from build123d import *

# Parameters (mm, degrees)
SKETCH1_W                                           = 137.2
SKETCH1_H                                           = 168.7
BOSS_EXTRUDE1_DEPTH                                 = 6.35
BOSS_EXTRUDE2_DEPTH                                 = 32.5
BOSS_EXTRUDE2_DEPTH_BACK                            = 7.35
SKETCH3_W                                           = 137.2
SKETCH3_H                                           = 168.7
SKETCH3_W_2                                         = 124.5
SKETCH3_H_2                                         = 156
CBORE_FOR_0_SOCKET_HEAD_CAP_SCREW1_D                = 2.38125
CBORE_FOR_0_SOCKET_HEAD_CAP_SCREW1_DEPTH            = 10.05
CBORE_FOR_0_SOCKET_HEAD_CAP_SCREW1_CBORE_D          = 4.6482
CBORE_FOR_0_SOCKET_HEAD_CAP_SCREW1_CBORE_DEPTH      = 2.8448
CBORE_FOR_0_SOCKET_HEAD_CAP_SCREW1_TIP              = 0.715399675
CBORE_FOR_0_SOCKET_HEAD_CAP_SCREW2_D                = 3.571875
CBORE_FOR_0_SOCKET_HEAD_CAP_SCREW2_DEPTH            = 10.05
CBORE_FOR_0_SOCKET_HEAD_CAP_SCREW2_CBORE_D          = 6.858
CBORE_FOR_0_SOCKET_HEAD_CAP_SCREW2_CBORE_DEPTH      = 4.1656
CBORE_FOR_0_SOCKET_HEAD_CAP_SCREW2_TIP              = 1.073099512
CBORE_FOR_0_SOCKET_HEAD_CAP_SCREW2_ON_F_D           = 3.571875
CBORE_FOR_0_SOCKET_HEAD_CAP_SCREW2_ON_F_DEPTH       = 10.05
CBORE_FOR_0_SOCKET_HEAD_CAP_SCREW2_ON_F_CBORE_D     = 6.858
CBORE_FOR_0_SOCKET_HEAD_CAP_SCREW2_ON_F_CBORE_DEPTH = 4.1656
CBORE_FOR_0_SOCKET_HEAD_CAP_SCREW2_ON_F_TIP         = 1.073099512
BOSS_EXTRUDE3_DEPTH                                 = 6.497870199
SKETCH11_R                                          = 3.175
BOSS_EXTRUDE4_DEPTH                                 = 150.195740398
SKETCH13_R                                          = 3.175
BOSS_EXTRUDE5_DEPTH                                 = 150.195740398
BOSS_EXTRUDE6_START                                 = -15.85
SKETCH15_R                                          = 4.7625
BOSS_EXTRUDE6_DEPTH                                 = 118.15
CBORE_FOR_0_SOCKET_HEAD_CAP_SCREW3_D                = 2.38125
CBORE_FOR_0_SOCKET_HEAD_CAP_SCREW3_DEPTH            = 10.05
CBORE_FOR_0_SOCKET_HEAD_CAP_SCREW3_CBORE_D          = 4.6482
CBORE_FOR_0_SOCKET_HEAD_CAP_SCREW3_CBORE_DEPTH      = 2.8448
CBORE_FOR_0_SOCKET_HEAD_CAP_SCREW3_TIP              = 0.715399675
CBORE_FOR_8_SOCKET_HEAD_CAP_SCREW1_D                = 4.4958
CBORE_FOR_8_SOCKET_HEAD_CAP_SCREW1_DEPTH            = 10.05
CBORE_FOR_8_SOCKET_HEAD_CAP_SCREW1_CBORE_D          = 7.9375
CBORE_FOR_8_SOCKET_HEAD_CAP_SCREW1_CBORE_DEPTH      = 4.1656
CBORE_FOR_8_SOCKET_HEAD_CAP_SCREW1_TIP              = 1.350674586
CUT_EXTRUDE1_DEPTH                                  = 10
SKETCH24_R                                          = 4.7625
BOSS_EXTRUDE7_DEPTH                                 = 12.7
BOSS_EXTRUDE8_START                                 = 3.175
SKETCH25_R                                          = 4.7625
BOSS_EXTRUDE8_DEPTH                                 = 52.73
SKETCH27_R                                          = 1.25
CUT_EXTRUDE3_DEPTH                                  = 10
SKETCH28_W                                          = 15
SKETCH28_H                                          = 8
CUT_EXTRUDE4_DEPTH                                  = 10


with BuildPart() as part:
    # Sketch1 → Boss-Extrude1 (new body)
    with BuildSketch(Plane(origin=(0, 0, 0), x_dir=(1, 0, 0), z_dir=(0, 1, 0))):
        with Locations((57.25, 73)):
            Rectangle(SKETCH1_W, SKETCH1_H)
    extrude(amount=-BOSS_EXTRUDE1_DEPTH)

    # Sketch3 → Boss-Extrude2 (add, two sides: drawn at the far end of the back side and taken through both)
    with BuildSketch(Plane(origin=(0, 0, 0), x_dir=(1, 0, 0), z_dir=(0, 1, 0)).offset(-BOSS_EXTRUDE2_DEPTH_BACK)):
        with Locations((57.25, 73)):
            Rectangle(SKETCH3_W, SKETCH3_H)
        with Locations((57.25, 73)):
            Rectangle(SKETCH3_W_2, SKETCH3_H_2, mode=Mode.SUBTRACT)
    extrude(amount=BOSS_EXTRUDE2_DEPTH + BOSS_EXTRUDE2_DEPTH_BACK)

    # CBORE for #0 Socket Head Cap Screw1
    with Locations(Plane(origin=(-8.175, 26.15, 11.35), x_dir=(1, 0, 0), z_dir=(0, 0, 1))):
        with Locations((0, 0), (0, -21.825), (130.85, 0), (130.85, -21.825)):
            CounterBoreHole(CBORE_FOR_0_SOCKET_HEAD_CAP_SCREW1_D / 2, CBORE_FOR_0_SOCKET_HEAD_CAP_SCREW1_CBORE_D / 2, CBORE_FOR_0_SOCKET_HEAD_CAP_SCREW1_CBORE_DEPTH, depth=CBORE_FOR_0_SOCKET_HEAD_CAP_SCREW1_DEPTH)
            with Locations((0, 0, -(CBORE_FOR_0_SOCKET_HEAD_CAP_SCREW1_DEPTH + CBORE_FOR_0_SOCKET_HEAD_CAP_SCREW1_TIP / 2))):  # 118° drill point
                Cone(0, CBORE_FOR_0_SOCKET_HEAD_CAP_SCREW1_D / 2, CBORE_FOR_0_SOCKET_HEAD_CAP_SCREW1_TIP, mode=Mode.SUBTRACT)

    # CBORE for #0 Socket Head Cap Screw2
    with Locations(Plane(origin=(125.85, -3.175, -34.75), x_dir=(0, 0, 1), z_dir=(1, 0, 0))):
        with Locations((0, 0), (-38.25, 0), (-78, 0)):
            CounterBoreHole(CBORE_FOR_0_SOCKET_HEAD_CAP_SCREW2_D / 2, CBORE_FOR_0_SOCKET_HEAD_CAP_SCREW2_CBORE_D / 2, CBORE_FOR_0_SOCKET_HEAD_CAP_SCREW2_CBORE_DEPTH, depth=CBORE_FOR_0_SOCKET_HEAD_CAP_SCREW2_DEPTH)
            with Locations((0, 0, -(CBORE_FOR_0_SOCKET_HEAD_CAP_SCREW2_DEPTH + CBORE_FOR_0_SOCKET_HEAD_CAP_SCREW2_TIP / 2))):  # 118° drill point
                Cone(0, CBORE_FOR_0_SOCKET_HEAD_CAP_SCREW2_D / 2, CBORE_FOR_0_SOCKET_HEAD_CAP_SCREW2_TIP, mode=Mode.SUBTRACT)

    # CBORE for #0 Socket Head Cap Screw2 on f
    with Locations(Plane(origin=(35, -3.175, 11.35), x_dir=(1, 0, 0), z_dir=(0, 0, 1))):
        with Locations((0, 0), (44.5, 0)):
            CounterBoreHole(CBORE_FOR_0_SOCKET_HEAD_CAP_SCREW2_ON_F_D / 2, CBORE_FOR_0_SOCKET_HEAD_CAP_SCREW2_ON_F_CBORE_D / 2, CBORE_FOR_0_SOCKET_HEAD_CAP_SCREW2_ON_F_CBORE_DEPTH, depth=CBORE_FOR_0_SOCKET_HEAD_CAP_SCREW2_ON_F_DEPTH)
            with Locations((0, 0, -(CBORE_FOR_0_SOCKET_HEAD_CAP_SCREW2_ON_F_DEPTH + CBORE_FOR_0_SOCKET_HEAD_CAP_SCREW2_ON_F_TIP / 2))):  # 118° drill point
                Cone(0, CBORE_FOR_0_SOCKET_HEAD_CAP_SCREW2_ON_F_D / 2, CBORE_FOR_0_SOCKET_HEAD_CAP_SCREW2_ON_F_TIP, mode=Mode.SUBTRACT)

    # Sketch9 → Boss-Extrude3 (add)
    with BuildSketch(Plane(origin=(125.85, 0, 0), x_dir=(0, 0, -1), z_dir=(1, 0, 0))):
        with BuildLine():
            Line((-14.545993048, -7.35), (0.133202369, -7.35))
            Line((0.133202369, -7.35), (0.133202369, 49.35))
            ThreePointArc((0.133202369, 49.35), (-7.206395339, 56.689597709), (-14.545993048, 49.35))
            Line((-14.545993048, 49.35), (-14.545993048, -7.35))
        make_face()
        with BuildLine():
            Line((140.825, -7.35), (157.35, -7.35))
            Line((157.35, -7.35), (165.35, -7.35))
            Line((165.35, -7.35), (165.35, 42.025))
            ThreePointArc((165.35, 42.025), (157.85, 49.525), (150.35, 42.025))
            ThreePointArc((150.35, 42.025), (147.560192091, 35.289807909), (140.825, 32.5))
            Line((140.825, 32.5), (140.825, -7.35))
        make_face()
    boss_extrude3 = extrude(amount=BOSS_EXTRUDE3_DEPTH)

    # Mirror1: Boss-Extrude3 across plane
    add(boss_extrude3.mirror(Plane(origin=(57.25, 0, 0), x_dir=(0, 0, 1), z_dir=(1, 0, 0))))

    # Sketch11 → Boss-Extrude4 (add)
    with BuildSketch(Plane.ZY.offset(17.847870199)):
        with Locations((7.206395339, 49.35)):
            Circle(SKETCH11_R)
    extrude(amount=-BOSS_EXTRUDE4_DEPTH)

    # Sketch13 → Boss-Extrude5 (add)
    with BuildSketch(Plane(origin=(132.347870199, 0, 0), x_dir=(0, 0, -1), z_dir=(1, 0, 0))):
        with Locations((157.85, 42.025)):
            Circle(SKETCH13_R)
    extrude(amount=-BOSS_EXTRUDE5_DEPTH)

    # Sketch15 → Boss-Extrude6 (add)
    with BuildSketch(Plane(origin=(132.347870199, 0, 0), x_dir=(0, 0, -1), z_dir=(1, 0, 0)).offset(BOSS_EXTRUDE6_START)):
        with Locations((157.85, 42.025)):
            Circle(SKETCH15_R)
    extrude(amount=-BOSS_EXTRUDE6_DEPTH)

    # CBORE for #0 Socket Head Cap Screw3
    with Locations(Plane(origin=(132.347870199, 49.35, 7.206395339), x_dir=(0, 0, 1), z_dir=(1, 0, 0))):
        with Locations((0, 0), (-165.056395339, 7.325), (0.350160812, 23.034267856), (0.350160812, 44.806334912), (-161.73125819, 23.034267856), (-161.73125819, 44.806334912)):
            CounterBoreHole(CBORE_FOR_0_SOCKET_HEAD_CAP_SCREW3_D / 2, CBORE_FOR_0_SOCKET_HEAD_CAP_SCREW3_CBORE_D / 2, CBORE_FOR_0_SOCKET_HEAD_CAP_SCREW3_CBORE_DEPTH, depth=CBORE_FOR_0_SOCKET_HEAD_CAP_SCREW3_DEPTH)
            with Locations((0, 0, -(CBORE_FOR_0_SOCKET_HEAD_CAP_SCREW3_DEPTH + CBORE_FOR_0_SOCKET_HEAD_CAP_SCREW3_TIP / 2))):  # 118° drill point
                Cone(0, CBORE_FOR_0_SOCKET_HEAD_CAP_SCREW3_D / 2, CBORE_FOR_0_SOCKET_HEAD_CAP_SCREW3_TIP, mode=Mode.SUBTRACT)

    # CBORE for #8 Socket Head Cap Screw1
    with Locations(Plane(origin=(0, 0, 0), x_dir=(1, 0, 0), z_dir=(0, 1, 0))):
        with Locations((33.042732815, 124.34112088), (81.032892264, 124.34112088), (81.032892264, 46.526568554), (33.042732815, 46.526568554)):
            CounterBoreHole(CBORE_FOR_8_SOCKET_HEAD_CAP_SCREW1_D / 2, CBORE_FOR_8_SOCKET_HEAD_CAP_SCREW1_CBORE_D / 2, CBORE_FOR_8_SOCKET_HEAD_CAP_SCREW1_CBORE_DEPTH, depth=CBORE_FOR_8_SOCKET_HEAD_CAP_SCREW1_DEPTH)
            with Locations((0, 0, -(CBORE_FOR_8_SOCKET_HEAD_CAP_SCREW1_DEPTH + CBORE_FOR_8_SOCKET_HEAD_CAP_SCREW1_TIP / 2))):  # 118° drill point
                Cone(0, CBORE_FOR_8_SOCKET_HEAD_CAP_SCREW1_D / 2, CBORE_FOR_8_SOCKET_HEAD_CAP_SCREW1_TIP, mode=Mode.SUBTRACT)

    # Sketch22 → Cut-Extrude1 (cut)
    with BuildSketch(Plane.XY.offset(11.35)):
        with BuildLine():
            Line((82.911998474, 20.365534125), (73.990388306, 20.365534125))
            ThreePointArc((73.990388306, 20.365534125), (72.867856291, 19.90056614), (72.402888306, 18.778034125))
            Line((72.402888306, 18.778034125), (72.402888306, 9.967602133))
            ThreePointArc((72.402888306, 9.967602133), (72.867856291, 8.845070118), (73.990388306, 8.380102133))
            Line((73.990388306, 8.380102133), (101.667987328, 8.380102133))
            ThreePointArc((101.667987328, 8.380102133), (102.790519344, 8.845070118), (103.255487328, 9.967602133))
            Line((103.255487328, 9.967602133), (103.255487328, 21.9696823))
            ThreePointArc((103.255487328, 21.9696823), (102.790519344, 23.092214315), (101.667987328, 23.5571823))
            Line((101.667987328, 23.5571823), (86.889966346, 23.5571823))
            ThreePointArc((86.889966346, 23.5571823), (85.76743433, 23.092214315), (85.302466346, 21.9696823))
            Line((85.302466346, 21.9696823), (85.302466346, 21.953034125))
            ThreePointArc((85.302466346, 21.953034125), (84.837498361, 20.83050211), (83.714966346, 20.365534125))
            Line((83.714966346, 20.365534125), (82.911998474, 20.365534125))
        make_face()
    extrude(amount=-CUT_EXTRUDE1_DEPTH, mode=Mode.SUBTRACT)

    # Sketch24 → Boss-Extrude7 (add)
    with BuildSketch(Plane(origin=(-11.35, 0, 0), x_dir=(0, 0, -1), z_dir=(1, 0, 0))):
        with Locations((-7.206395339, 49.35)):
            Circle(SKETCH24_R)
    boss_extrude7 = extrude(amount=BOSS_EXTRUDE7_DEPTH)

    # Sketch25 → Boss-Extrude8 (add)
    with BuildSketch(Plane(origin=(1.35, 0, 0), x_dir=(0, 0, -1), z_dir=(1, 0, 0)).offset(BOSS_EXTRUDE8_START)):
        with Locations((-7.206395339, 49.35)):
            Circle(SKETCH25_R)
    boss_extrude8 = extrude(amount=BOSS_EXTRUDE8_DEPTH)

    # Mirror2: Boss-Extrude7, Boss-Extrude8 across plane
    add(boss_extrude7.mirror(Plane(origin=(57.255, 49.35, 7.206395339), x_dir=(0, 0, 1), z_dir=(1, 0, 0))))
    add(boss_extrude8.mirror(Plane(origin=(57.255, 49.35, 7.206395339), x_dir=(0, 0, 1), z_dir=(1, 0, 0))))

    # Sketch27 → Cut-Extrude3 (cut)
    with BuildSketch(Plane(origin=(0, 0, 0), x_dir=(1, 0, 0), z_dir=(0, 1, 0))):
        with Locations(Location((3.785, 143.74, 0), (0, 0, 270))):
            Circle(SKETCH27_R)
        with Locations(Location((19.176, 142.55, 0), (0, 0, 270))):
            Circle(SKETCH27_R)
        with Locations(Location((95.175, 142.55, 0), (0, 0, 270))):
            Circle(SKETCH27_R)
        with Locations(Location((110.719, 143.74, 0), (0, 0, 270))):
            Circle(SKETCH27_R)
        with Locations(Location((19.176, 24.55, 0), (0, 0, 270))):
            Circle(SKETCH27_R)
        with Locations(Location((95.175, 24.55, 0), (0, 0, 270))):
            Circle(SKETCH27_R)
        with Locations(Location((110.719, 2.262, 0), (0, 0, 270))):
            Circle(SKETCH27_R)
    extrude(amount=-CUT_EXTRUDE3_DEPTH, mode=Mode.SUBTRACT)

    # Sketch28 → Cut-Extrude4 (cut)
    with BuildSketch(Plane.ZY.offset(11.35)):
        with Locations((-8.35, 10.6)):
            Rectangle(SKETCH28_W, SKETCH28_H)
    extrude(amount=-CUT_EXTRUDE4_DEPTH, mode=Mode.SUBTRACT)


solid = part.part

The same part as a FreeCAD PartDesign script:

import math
import FreeCAD as App
import Part
import Sketcher
from FreeCAD import Vector
Q = App.Units.Quantity


def add_polygon(sketch, points):
    """Adds a closed chain of lines whose ends are joined by coincident constraints."""
    first, n = sketch.GeometryCount, len(points)
    for a, b in zip(points, points[1:] + points[:1]):
        sketch.addGeometry(Part.LineSegment(App.Vector(*a, 0), App.Vector(*b, 0)), False)
    for i in range(n):
        sketch.addConstraint(Sketcher.Constraint("Coincident", first + i, 2, first + (i + 1) % n, 1))

doc = App.newDocument("Part")
body = doc.addObject("PartDesign::Body", "Body")

# Sketch on XZ plane
sketch1 = body.newObject("Sketcher::SketchObject", "Sketch")
sketch1.AttachmentSupport = (doc.getObject("XZ_Plane"), [""])
sketch1.MapMode = "FlatFace"
add_polygon(sketch1, [(-11, -157), (-11, 11), (126, 11), (126, -157)])  # lines 0-3
sketch1.addConstraint(Sketcher.Constraint("Vertical", 0))
sketch1.addConstraint(Sketcher.Constraint("Horizontal", 1))
sketch1.addConstraint(Sketcher.Constraint("Vertical", 2))
sketch1.addConstraint(Sketcher.Constraint("Horizontal", 3))
sketch1.addConstraint(Sketcher.Constraint("DistanceX", 1, 1, 1, 2, Q("137.2 mm")))
sketch1.addConstraint(Sketcher.Constraint("DistanceY", 0, 1, 0, 2, Q("168.7 mm")))
sketch1.addConstraint(Sketcher.Constraint("DistanceX", 0, 2, -1, 1, Q("11.35 mm")))
sketch1.addConstraint(Sketcher.Constraint("DistanceY", -1, 1, 0, 2, Q("11.35 mm")))
pad1 = body.newObject("PartDesign::Pad", "Pad")
pad1.Profile = sketch1
pad1.Length = 6.35

# Sketch on XZ plane
sketch2 = body.newObject("Sketcher::SketchObject", "Sketch001")
sketch2.AttachmentSupport = (doc.getObject("XZ_Plane"), [""])
sketch2.MapMode = "FlatFace"
add_polygon(sketch2, [(-11, -157), (-11, 11), (126, 11), (126, -157)])  # lines 0-3
add_polygon(sketch2, [(120, 5), (-5, 5), (-5, -151), (120, -151)])  # lines 4-7
sketch2.addConstraint(Sketcher.Constraint("Vertical", 0))
sketch2.addConstraint(Sketcher.Constraint("Horizontal", 1))
sketch2.addConstraint(Sketcher.Constraint("Vertical", 2))
sketch2.addConstraint(Sketcher.Constraint("Horizontal", 3))
sketch2.addConstraint(Sketcher.Constraint("Horizontal", 4))
sketch2.addConstraint(Sketcher.Constraint("Vertical", 5))
sketch2.addConstraint(Sketcher.Constraint("Horizontal", 6))
sketch2.addConstraint(Sketcher.Constraint("Vertical", 7))
sketch2.addConstraint(Sketcher.Constraint("DistanceY", 5, 2, 5, 1, Q("156 mm")))
sketch2.addConstraint(Sketcher.Constraint("DistanceX", 1, 1, 1, 2, Q("137.2 mm")))
sketch2.addConstraint(Sketcher.Constraint("DistanceX", 4, 2, 4, 1, Q("124.5 mm")))
sketch2.addConstraint(Sketcher.Constraint("DistanceY", 0, 1, 0, 2, Q("168.7 mm")))
sketch2.addConstraint(Sketcher.Constraint("DistanceX", 4, 2, -1, 1, Q("5 mm")))
sketch2.addConstraint(Sketcher.Constraint("DistanceY", -1, 1, 4, 2, Q("5 mm")))
sketch2.addConstraint(Sketcher.Constraint("DistanceX", 0, 2, -1, 1, Q("11.35 mm")))
sketch2.addConstraint(Sketcher.Constraint("DistanceY", -1, 1, 0, 2, Q("11.35 mm")))
pad2 = body.newObject("PartDesign::Pad", "Pad001")
pad2.Profile = sketch2
pad2.Type = "TwoLengths"
pad2.Length = 32.5
pad2.Length2 = 7.35
pad2.Reversed = True

# Sketch on XY plane
sketch3 = body.newObject("Sketcher::SketchObject", "Sketch002")
sketch3.AttachmentSupport = (doc.getObject("XY_Plane"), [""])
sketch3.MapMode = "FlatFace"
sketch3.AttachmentOffset = App.Placement(Vector(0, 0, 11.35), App.Rotation())
sketch3.addGeometry(Part.Circle(Vector(-8.2, 26.1, 0), Vector(0, 0, 1), 1.2), False)
sketch3.addGeometry(Part.Circle(Vector(-8.2, 4.3, 0), Vector(0, 0, 1), 1.2), False)
sketch3.addGeometry(Part.Circle(Vector(122.7, 26.1, 0), Vector(0, 0, 1), 1.2), False)
sketch3.addGeometry(Part.Circle(Vector(122.7, 4.3, 0), Vector(0, 0, 1), 1.2), False)
sketch3.addConstraint(Sketcher.Constraint("Equal", 0, 1))
sketch3.addConstraint(Sketcher.Constraint("Equal", 1, 2))
sketch3.addConstraint(Sketcher.Constraint("Equal", 2, 3))
sketch3.addConstraint(Sketcher.Constraint("Horizontal", 0, 3, 2, 3))
sketch3.addConstraint(Sketcher.Constraint("Horizontal", 1, 3, 3, 3))
sketch3.addConstraint(Sketcher.Constraint("Vertical", 0, 3, 1, 3))
sketch3.addConstraint(Sketcher.Constraint("Vertical", 2, 3, 3, 3))
sketch3.addConstraint(Sketcher.Constraint("Diameter", 0, Q("2.38125 mm")))
sketch3.addConstraint(Sketcher.Constraint("DistanceY", -1, 1, 0, 3, Q("26.15 mm")))
sketch3.addConstraint(Sketcher.Constraint("DistanceX", 0, 3, 2, 3, Q("130.85 mm")))
sketch3.addConstraint(Sketcher.Constraint("DistanceX", 0, 3, -1, 1, Q("8.175 mm")))
sketch3.addConstraint(Sketcher.Constraint("DistanceY", -1, 1, 1, 3, Q("4.325 mm")))
doc.recompute()
hole = body.newObject("PartDesign::Hole", "Hole")
hole.Profile = sketch3
hole.ThreadType = "None"
hole.Diameter = 2.38125
hole.DepthType = "Dimension"
hole.Depth = 10.05
hole.DrillPoint = "Angled"
hole.DrillPointAngle = 118
hole.HoleCutType = "Counterbore"
hole.HoleCutDiameter = 4.6482
hole.HoleCutDepth = 2.8448

# Sketch on YZ plane
sketch4 = body.newObject("Sketcher::SketchObject", "Sketch003")
sketch4.AttachmentSupport = (doc.getObject("YZ_Plane"), [""])
sketch4.MapMode = "FlatFace"
sketch4.AttachmentOffset = App.Placement(Vector(0, 0, 125.85), App.Rotation())
sketch4.addGeometry(Part.Circle(Vector(-3.2, -34.8, 0), Vector(0, 0, 1), 1.8), False)
sketch4.addGeometry(Part.Circle(Vector(-3.2, -73, 0), Vector(0, 0, 1), 1.8), False)
sketch4.addGeometry(Part.Circle(Vector(-3.2, -112.8, 0), Vector(0, 0, 1), 1.8), False)
sketch4.addConstraint(Sketcher.Constraint("Equal", 0, 1))
sketch4.addConstraint(Sketcher.Constraint("Equal", 1, 2))
sketch4.addConstraint(Sketcher.Constraint("Vertical", 0, 3, 1, 3))
sketch4.addConstraint(Sketcher.Constraint("Vertical", 1, 3, 2, 3))
sketch4.addConstraint(Sketcher.Constraint("DistanceY", 1, 3, -1, 1, Q("73 mm")))
sketch4.addConstraint(Sketcher.Constraint("DistanceY", 2, 3, 0, 3, Q("78 mm")))
sketch4.addConstraint(Sketcher.Constraint("DistanceY", 0, 3, -1, 1, Q("34.75 mm")))
sketch4.addConstraint(Sketcher.Constraint("Diameter", 0, Q("3.571875 mm")))
sketch4.addConstraint(Sketcher.Constraint("DistanceX", 0, 3, -1, 1, Q("3.175 mm")))
doc.recompute()
hole2 = body.newObject("PartDesign::Hole", "Hole001")
hole2.Profile = sketch4
hole2.ThreadType = "None"
hole2.Diameter = 3.571875
hole2.DepthType = "Dimension"
hole2.Depth = 10.05
hole2.DrillPoint = "Angled"
hole2.DrillPointAngle = 118
hole2.HoleCutType = "Counterbore"
hole2.HoleCutDiameter = 6.858
hole2.HoleCutDepth = 4.1656

# Sketch on XY plane
sketch5 = body.newObject("Sketcher::SketchObject", "Sketch004")
sketch5.AttachmentSupport = (doc.getObject("XY_Plane"), [""])
sketch5.MapMode = "FlatFace"
sketch5.AttachmentOffset = App.Placement(Vector(0, 0, 11.35), App.Rotation())
sketch5.addGeometry(Part.Circle(Vector(35, -3.2, 0), Vector(0, 0, 1), 1.8), False)
sketch5.addGeometry(Part.Circle(Vector(79.5, -3.2, 0), Vector(0, 0, 1), 1.8), False)
sketch5.addConstraint(Sketcher.Constraint("Equal", 0, 1))
sketch5.addConstraint(Sketcher.Constraint("Horizontal", 0, 3, 1, 3))
sketch5.addConstraint(Sketcher.Constraint("DistanceX", -1, 1, 0, 3, Q("35 mm")))
sketch5.addConstraint(Sketcher.Constraint("DistanceX", -1, 1, 1, 3, Q("79.5 mm")))
sketch5.addConstraint(Sketcher.Constraint("Diameter", 0, Q("3.571875 mm")))
sketch5.addConstraint(Sketcher.Constraint("DistanceY", 0, 3, -1, 1, Q("3.175 mm")))
doc.recompute()
hole3 = body.newObject("PartDesign::Hole", "Hole002")
hole3.Profile = sketch5
hole3.ThreadType = "None"
hole3.Diameter = 3.571875
hole3.DepthType = "Dimension"
hole3.Depth = 10.05
hole3.DrillPoint = "Angled"
hole3.DrillPointAngle = 118
hole3.HoleCutType = "Counterbore"
hole3.HoleCutDiameter = 6.858
hole3.HoleCutDepth = 4.1656

# Sketch on YZ plane
sketch6 = body.newObject("Sketcher::SketchObject", "Sketch005")
sketch6.AttachmentSupport = (doc.getObject("YZ_Plane"), [""])
sketch6.MapMode = "FlatFace"
sketch6.AttachmentOffset = App.Placement(Vector(0, 0, 125.85), App.Rotation())
sketch6.addGeometry(Part.LineSegment(Vector(-7, 15, 0), Vector(-7, 0, 0)), False)
sketch6.addGeometry(Part.LineSegment(Vector(-7, 0, 0), Vector(49, 0, 0)), False)
sketch6.addGeometry(Part.ArcOfCircle(Part.Circle(Vector(49, 7, 0), Vector(0, 0, 1), 7), math.radians(-90), math.radians(90)), False)
sketch6.addGeometry(Part.LineSegment(Vector(49, 15, 0), Vector(-7, 15, 0)), False)
sketch6.addGeometry(Part.LineSegment(Vector(-7, -141, 0), Vector(-7, -165, 0)), False)
sketch6.addGeometry(Part.LineSegment(Vector(-7, -165, 0), Vector(42, -165, 0)), False)
sketch6.addGeometry(Part.ArcOfCircle(Part.Circle(Vector(42, -158, 0), Vector(0, 0, 1), 8), math.radians(-90), math.radians(90)), False)
sketch6.addGeometry(Part.ArcOfCircle(Part.Circle(Vector(42, -141, 0), Vector(0, 0, 1), 10), math.radians(180), math.radians(270)), False)
sketch6.addGeometry(Part.LineSegment(Vector(32, -141, 0), Vector(-7, -141, 0)), False)
sketch6.addConstraint(Sketcher.Constraint("Coincident", 0, 2, 1, 1))
sketch6.addConstraint(Sketcher.Constraint("Tangent", 1, 2, 2, 1))
sketch6.addConstraint(Sketcher.Constraint("Tangent", 2, 2, 3, 1))
sketch6.addConstraint(Sketcher.Constraint("Coincident", 3, 2, 0, 1))
sketch6.addConstraint(Sketcher.Constraint("Coincident", 4, 2, 5, 1))
sketch6.addConstraint(Sketcher.Constraint("Tangent", 5, 2, 6, 1))
sketch6.addConstraint(Sketcher.Constraint("Tangent", 6, 2, 7, 2))
sketch6.addConstraint(Sketcher.Constraint("Coincident", 7, 1, 8, 1))
sketch6.addConstraint(Sketcher.Constraint("Coincident", 8, 2, 4, 1))
sketch6.addConstraint(Sketcher.Constraint("Vertical", 0))
sketch6.addConstraint(Sketcher.Constraint("Horizontal", 1))
sketch6.addConstraint(Sketcher.Constraint("Horizontal", 3))
sketch6.addConstraint(Sketcher.Constraint("Vertical", 4))
sketch6.addConstraint(Sketcher.Constraint("Horizontal", 5))
sketch6.addConstraint(Sketcher.Constraint("Horizontal", 8))
sketch6.addConstraint(Sketcher.Constraint("Vertical", 6, 3, 7, 3))
sketch6.addConstraint(Sketcher.Constraint("Vertical", 3, 2, 4, 2))
sketch6.addConstraint(Sketcher.Constraint("Radius", 6, Q("7.5 mm")))
sketch6.addConstraint(Sketcher.Constraint("DistanceX", 1, 1, 1, 2, Q("56.7 mm")))
sketch6.addConstraint(Sketcher.Constraint("Radius", 7, Q("9.525 mm")))
sketch6.addConstraint(Sketcher.Constraint("DistanceX", 8, 2, 8, 1, Q("39.85 mm")))
sketch6.addConstraint(Sketcher.Constraint("DistanceX", -1, 1, 7, 1, Q("32.5 mm")))
sketch6.addConstraint(Sketcher.Constraint("DistanceY", 4, 2, 4, 1, Q("24.525 mm")))
sketch6.addConstraint(Sketcher.Constraint("DistanceY", 6, 3, -1, 1, Q("157.85 mm")))
sketch6.addConstraint(Sketcher.Constraint("Radius", 2, Q("7.339598 mm")))
sketch6.addConstraint(Sketcher.Constraint("DistanceY", -1, 1, 2, 3, Q("7.206395 mm")))
pad3 = body.newObject("PartDesign::Pad", "Pad002")
pad3.Profile = sketch6
pad3.Length = 6.49787
doc.recompute()

datumplane = body.newObject("PartDesign::Plane", "DatumPlane")
datumplane.AttachmentSupport = (doc.getObject("YZ_Plane"), [""])
datumplane.MapMode = "FlatFace"
datumplane.AttachmentOffset = App.Placement(Vector(0, 0, 57.25), App.Rotation())
mirrored = body.newObject("PartDesign::Mirrored", "Mirrored")
mirrored.Originals = [pad3]
mirrored.MirrorPlane = (datumplane, [""])
body.Tip = mirrored

# Sketch on YZ plane
sketch7 = body.newObject("Sketcher::SketchObject", "Sketch006")
sketch7.AttachmentSupport = (doc.getObject("YZ_Plane"), [""])
sketch7.MapMode = "FlatFace"
sketch7.AttachmentOffset = App.Placement(Vector(0, 0, -17.84787), App.Rotation())
sketch7.addGeometry(Part.Circle(Vector(49.4, 7.2, 0), Vector(0, 0, 1), 3.2), False)
sketch7.addConstraint(Sketcher.Constraint("Diameter", 0, Q("6.35 mm")))
sketch7.addConstraint(Sketcher.Constraint("DistanceX", -1, 1, 0, 3, Q("49.35 mm")))
sketch7.addConstraint(Sketcher.Constraint("DistanceY", -1, 1, 0, 3, Q("7.206395 mm")))
pad4 = body.newObject("PartDesign::Pad", "Pad003")
pad4.Profile = sketch7
pad4.Length = 150.19574

# Sketch on YZ plane
sketch8 = body.newObject("Sketcher::SketchObject", "Sketch007")
sketch8.AttachmentSupport = (doc.getObject("YZ_Plane"), [""])
sketch8.MapMode = "FlatFace"
sketch8.AttachmentOffset = App.Placement(Vector(0, 0, 132.34787), App.Rotation())
sketch8.addGeometry(Part.Circle(Vector(42, -157.8, 0), Vector(0, 0, 1), 3.2), False)
sketch8.addConstraint(Sketcher.Constraint("Diameter", 0, Q("6.35 mm")))
sketch8.addConstraint(Sketcher.Constraint("DistanceY", 0, 3, -1, 1, Q("157.85 mm")))
sketch8.addConstraint(Sketcher.Constraint("DistanceX", -1, 1, 0, 3, Q("42.025 mm")))
pad5 = body.newObject("PartDesign::Pad", "Pad004")
pad5.Profile = sketch8
pad5.Length = 150.19574
pad5.Reversed = True

# Sketch on YZ plane
sketch9 = body.newObject("Sketcher::SketchObject", "Sketch008")
sketch9.AttachmentSupport = (doc.getObject("YZ_Plane"), [""])
sketch9.MapMode = "FlatFace"
sketch9.AttachmentOffset = App.Placement(Vector(0, 0, 116.49787), App.Rotation())
sketch9.addGeometry(Part.Circle(Vector(42, -157.8, 0), Vector(0, 0, 1), 4.8), False)
sketch9.addConstraint(Sketcher.Constraint("Diameter", 0, Q("9.525 mm")))
sketch9.addConstraint(Sketcher.Constraint("DistanceY", 0, 3, -1, 1, Q("157.85 mm")))
sketch9.addConstraint(Sketcher.Constraint("DistanceX", -1, 1, 0, 3, Q("42.025 mm")))
pad6 = body.newObject("PartDesign::Pad", "Pad005")
pad6.Profile = sketch9
pad6.Length = 118.15
pad6.Reversed = True

# Sketch on YZ plane
sketch10 = body.newObject("Sketcher::SketchObject", "Sketch009")
sketch10.AttachmentSupport = (doc.getObject("YZ_Plane"), [""])
sketch10.MapMode = "FlatFace"
sketch10.AttachmentOffset = App.Placement(Vector(0, 0, 132.34787), App.Rotation())
sketch10.addGeometry(Part.Circle(Vector(49.4, 7.2, 0), Vector(0, 0, 1), 1.2), False)
sketch10.addGeometry(Part.Circle(Vector(42, -157.8, 0), Vector(0, 0, 1), 1.2), False)
sketch10.addGeometry(Part.Circle(Vector(26.3, 7.6, 0), Vector(0, 0, 1), 1.2), False)
sketch10.addGeometry(Part.Circle(Vector(4.5, 7.6, 0), Vector(0, 0, 1), 1.2), False)
sketch10.addGeometry(Part.Circle(Vector(26.3, -154.5, 0), Vector(0, 0, 1), 1.2), False)
sketch10.addGeometry(Part.Circle(Vector(4.5, -154.5, 0), Vector(0, 0, 1), 1.2), False)
sketch10.addConstraint(Sketcher.Constraint("Equal", 0, 1))
sketch10.addConstraint(Sketcher.Constraint("Equal", 1, 2))
sketch10.addConstraint(Sketcher.Constraint("Equal", 2, 3))
sketch10.addConstraint(Sketcher.Constraint("Equal", 3, 4))
sketch10.addConstraint(Sketcher.Constraint("Equal", 4, 5))
sketch10.addConstraint(Sketcher.Constraint("Horizontal", 2, 3, 3, 3))
sketch10.addConstraint(Sketcher.Constraint("Horizontal", 4, 3, 5, 3))
sketch10.addConstraint(Sketcher.Constraint("Vertical", 2, 3, 4, 3))
sketch10.addConstraint(Sketcher.Constraint("Vertical", 3, 3, 5, 3))
sketch10.addConstraint(Sketcher.Constraint("Diameter", 0, Q("2.38125 mm")))
sketch10.addConstraint(Sketcher.Constraint("DistanceX", -1, 1, 0, 3, Q("49.35 mm")))
sketch10.addConstraint(Sketcher.Constraint("DistanceY", 1, 3, -1, 1, Q("157.85 mm")))
sketch10.addConstraint(Sketcher.Constraint("DistanceX", -1, 1, 1, 3, Q("42.025 mm")))
sketch10.addConstraint(Sketcher.Constraint("DistanceY", 0, 3, 2, 3, Q("0.350161 mm")))
sketch10.addConstraint(Sketcher.Constraint("DistanceY", 4, 3, 2, 3, Q("162.081419 mm")))
sketch10.addConstraint(Sketcher.Constraint("DistanceY", -1, 1, 0, 3, Q("7.206395 mm")))
sketch10.addConstraint(Sketcher.Constraint("DistanceX", -1, 1, 2, 3, Q("26.315732 mm")))
sketch10.addConstraint(Sketcher.Constraint("DistanceX", -1, 1, 3, 3, Q("4.543665 mm")))
doc.recompute()
hole4 = body.newObject("PartDesign::Hole", "Hole003")
hole4.Profile = sketch10
hole4.ThreadType = "None"
hole4.Diameter = 2.38125
hole4.DepthType = "Dimension"
hole4.Depth = 10.05
hole4.DrillPoint = "Angled"
hole4.DrillPointAngle = 118
hole4.HoleCutType = "Counterbore"
hole4.HoleCutDiameter = 4.6482
hole4.HoleCutDepth = 2.8448

# Sketch on XZ plane
sketch11 = body.newObject("Sketcher::SketchObject", "Sketch010")
sketch11.AttachmentSupport = (doc.getObject("XZ_Plane"), [""])
sketch11.MapMode = "FlatFace"
sketch11.addGeometry(Part.Circle(Vector(33, -124.3, 0), Vector(0, 0, 1), 2.2), False)
sketch11.addGeometry(Part.Circle(Vector(81, -124.3, 0), Vector(0, 0, 1), 2.2), False)
sketch11.addGeometry(Part.Circle(Vector(81, -46.5, 0), Vector(0, 0, 1), 2.2), False)
sketch11.addGeometry(Part.Circle(Vector(33, -46.5, 0), Vector(0, 0, 1), 2.2), False)
sketch11.addConstraint(Sketcher.Constraint("Equal", 0, 1))
sketch11.addConstraint(Sketcher.Constraint("Equal", 1, 2))
sketch11.addConstraint(Sketcher.Constraint("Equal", 2, 3))
sketch11.addConstraint(Sketcher.Constraint("Horizontal", 0, 3, 1, 3))
sketch11.addConstraint(Sketcher.Constraint("Horizontal", 2, 3, 3, 3))
sketch11.addConstraint(Sketcher.Constraint("Vertical", 1, 3, 2, 3))
sketch11.addConstraint(Sketcher.Constraint("Vertical", 0, 3, 3, 3))
sketch11.addConstraint(Sketcher.Constraint("Diameter", 0, Q("4.4958 mm")))
sketch11.addConstraint(Sketcher.Constraint("DistanceY", 0, 3, -1, 1, Q("124.341121 mm")))
sketch11.addConstraint(Sketcher.Constraint("DistanceY", 2, 3, -1, 1, Q("46.526569 mm")))
sketch11.addConstraint(Sketcher.Constraint("DistanceX", 0, 3, 1, 3, Q("47.990159 mm")))
sketch11.addConstraint(Sketcher.Constraint("DistanceX", -1, 1, 0, 3, Q("33.042733 mm")))
doc.recompute()
hole5 = body.newObject("PartDesign::Hole", "Hole004")
hole5.Profile = sketch11
hole5.ThreadType = "None"
hole5.Diameter = 4.4958
hole5.DepthType = "Dimension"
hole5.Depth = 10.05
hole5.DrillPoint = "Angled"
hole5.DrillPointAngle = 118
hole5.HoleCutType = "Counterbore"
hole5.HoleCutDiameter = 7.9375
hole5.HoleCutDepth = 4.1656
hole5.Reversed = True

# Sketch on XY plane
sketch12 = body.newObject("Sketcher::SketchObject", "Sketch011")
sketch12.AttachmentSupport = (doc.getObject("XY_Plane"), [""])
sketch12.MapMode = "FlatFace"
sketch12.AttachmentOffset = App.Placement(Vector(0, 0, 11.35), App.Rotation())
sketch12.addGeometry(Part.ArcOfCircle(Part.Circle(Vector(73.99, 18.778, 0), Vector(0, 0, 1), 1.587), math.radians(90), math.radians(180)), False)
sketch12.addGeometry(Part.LineSegment(Vector(72.403, 18.778, 0), Vector(72.403, 9.968, 0)), False)
sketch12.addGeometry(Part.ArcOfCircle(Part.Circle(Vector(73.99, 9.968, 0), Vector(0, 0, 1), 1.587), math.radians(180), math.radians(270)), False)
sketch12.addGeometry(Part.LineSegment(Vector(73.99, 8.38, 0), Vector(101.668, 8.38, 0)), False)
sketch12.addGeometry(Part.ArcOfCircle(Part.Circle(Vector(101.668, 9.968, 0), Vector(0, 0, 1), 1.587), math.radians(-90), math.radians(0)), False)
sketch12.addGeometry(Part.LineSegment(Vector(103.255, 9.968, 0), Vector(103.255, 21.97, 0)), False)
sketch12.addGeometry(Part.ArcOfCircle(Part.Circle(Vector(101.668, 21.97, 0), Vector(0, 0, 1), 1.587), math.radians(0), math.radians(90)), False)
sketch12.addGeometry(Part.LineSegment(Vector(101.668, 23.557, 0), Vector(86.89, 23.557, 0)), False)
sketch12.addGeometry(Part.ArcOfCircle(Part.Circle(Vector(86.89, 21.97, 0), Vector(0, 0, 1), 1.587), math.radians(90), math.radians(180)), False)
sketch12.addGeometry(Part.LineSegment(Vector(85.302, 21.97, 0), Vector(85.302, 21.953, 0)), False)
sketch12.addGeometry(Part.ArcOfCircle(Part.Circle(Vector(83.715, 21.953, 0), Vector(0, 0, 1), 1.587), math.radians(-90), math.radians(0)), False)
sketch12.addGeometry(Part.LineSegment(Vector(83.715, 20.366, 0), Vector(73.99, 20.366, 0)), False)
sketch12.addConstraint(Sketcher.Constraint("Tangent", 0, 2, 1, 1))
sketch12.addConstraint(Sketcher.Constraint("Tangent", 1, 2, 2, 1))
sketch12.addConstraint(Sketcher.Constraint("Tangent", 2, 2, 3, 1))
sketch12.addConstraint(Sketcher.Constraint("Tangent", 3, 2, 4, 1))
sketch12.addConstraint(Sketcher.Constraint("Tangent", 4, 2, 5, 1))
sketch12.addConstraint(Sketcher.Constraint("Tangent", 5, 2, 6, 1))
sketch12.addConstraint(Sketcher.Constraint("Tangent", 6, 2, 7, 1))
sketch12.addConstraint(Sketcher.Constraint("Tangent", 7, 2, 8, 1))
sketch12.addConstraint(Sketcher.Constraint("Tangent", 8, 2, 9, 1))
sketch12.addConstraint(Sketcher.Constraint("Tangent", 9, 2, 10, 2))
sketch12.addConstraint(Sketcher.Constraint("Tangent", 10, 1, 11, 1))
sketch12.addConstraint(Sketcher.Constraint("Tangent", 11, 2, 0, 1))
sketch12.addConstraint(Sketcher.Constraint("Vertical", 1))
sketch12.addConstraint(Sketcher.Constraint("Horizontal", 3))
sketch12.addConstraint(Sketcher.Constraint("Vertical", 5))
sketch12.addConstraint(Sketcher.Constraint("Horizontal", 7))
sketch12.addConstraint(Sketcher.Constraint("Vertical", 9))
sketch12.addConstraint(Sketcher.Constraint("Horizontal", 11))
sketch12.addConstraint(Sketcher.Constraint("Equal", 0, 2))
sketch12.addConstraint(Sketcher.Constraint("Equal", 2, 4))
sketch12.addConstraint(Sketcher.Constraint("Equal", 4, 6))
sketch12.addConstraint(Sketcher.Constraint("Equal", 6, 8))
sketch12.addConstraint(Sketcher.Constraint("Equal", 8, 10))
sketch12.addConstraint(Sketcher.Constraint("Radius", 0, Q("1.5875 mm")))
sketch12.addConstraint(Sketcher.Constraint("DistanceX", 3, 1, 3, 2, Q("27.677599 mm")))
sketch12.addConstraint(Sketcher.Constraint("DistanceX", 7, 2, 7, 1, Q("14.778021 mm")))
sketch12.addConstraint(Sketcher.Constraint("DistanceY", 1, 2, 1, 1, Q("8.810432 mm")))
sketch12.addConstraint(Sketcher.Constraint("DistanceY", 5, 1, 5, 2, Q("12.00208 mm")))
sketch12.addConstraint(Sketcher.Constraint("DistanceX", -1, 1, 0, 3, Q("73.990388 mm")))
sketch12.addConstraint(Sketcher.Constraint("DistanceY", -1, 1, 0, 3, Q("18.778034 mm")))
pocket1 = body.newObject("PartDesign::Pocket", "Pocket")
pocket1.Profile = sketch12
pocket1.Length = 10

# Sketch on YZ plane
sketch13 = body.newObject("Sketcher::SketchObject", "Sketch012")
sketch13.AttachmentSupport = (doc.getObject("YZ_Plane"), [""])
sketch13.MapMode = "FlatFace"
sketch13.AttachmentOffset = App.Placement(Vector(0, 0, -11.35), App.Rotation())
sketch13.addGeometry(Part.Circle(Vector(49.4, 7.2, 0), Vector(0, 0, 1), 4.8), False)
sketch13.addConstraint(Sketcher.Constraint("Diameter", 0, Q("9.525 mm")))
sketch13.addConstraint(Sketcher.Constraint("DistanceX", -1, 1, 0, 3, Q("49.35 mm")))
sketch13.addConstraint(Sketcher.Constraint("DistanceY", -1, 1, 0, 3, Q("7.206395 mm")))
pad7 = body.newObject("PartDesign::Pad", "Pad006")
pad7.Profile = sketch13
pad7.Length = 12.7

# Sketch on YZ plane
sketch14 = body.newObject("Sketcher::SketchObject", "Sketch013")
sketch14.AttachmentSupport = (doc.getObject("YZ_Plane"), [""])
sketch14.MapMode = "FlatFace"
sketch14.AttachmentOffset = App.Placement(Vector(0, 0, 4.525), App.Rotation())
sketch14.addGeometry(Part.Circle(Vector(49.4, 7.2, 0), Vector(0, 0, 1), 4.8), False)
sketch14.addConstraint(Sketcher.Constraint("Diameter", 0, Q("9.525 mm")))
sketch14.addConstraint(Sketcher.Constraint("DistanceX", -1, 1, 0, 3, Q("49.35 mm")))
sketch14.addConstraint(Sketcher.Constraint("DistanceY", -1, 1, 0, 3, Q("7.206395 mm")))
pad8 = body.newObject("PartDesign::Pad", "Pad007")
pad8.Profile = sketch14
pad8.Length = 52.73
doc.recompute()

datumplane2 = body.newObject("PartDesign::Plane", "DatumPlane001")
datumplane2.AttachmentSupport = (doc.getObject("YZ_Plane"), [""])
datumplane2.MapMode = "FlatFace"
datumplane2.AttachmentOffset = App.Placement(Vector(0, 0, 57.255), App.Rotation())
mirrored2 = body.newObject("PartDesign::Mirrored", "Mirrored001")
mirrored2.Originals = [pad7, pad8]
mirrored2.MirrorPlane = (datumplane2, [""])
body.Tip = mirrored2

# Sketch on XZ plane
sketch15 = body.newObject("Sketcher::SketchObject", "Sketch014")
sketch15.AttachmentSupport = (doc.getObject("XZ_Plane"), [""])
sketch15.MapMode = "FlatFace"
sketch15.addGeometry(Part.Circle(Vector(3.8, -143.7, 0), Vector(0, 0, 1), 1.2), False)
sketch15.addGeometry(Part.Circle(Vector(19.2, -142.6, 0), Vector(0, 0, 1), 1.2), False)
sketch15.addGeometry(Part.Circle(Vector(95.2, -142.6, 0), Vector(0, 0, 1), 1.2), False)
sketch15.addGeometry(Part.Circle(Vector(110.7, -143.7, 0), Vector(0, 0, 1), 1.2), False)
sketch15.addGeometry(Part.Circle(Vector(19.2, -24.6, 0), Vector(0, 0, 1), 1.2), False)
sketch15.addGeometry(Part.Circle(Vector(95.2, -24.6, 0), Vector(0, 0, 1), 1.2), False)
sketch15.addGeometry(Part.Circle(Vector(110.7, -2.3, 0), Vector(0, 0, 1), 1.2), False)
sketch15.addConstraint(Sketcher.Constraint("Equal", 0, 1))
sketch15.addConstraint(Sketcher.Constraint("Equal", 1, 2))
sketch15.addConstraint(Sketcher.Constraint("Equal", 2, 3))
sketch15.addConstraint(Sketcher.Constraint("Equal", 3, 4))
sketch15.addConstraint(Sketcher.Constraint("Equal", 4, 5))
sketch15.addConstraint(Sketcher.Constraint("Equal", 5, 6))
sketch15.addConstraint(Sketcher.Constraint("Horizontal", 1, 3, 2, 3))
sketch15.addConstraint(Sketcher.Constraint("Horizontal", 0, 3, 3, 3))
sketch15.addConstraint(Sketcher.Constraint("Horizontal", 4, 3, 5, 3))
sketch15.addConstraint(Sketcher.Constraint("Vertical", 1, 3, 4, 3))
sketch15.addConstraint(Sketcher.Constraint("Vertical", 2, 3, 5, 3))
sketch15.addConstraint(Sketcher.Constraint("Vertical", 3, 3, 6, 3))
sketch15.addConstraint(Sketcher.Constraint("Diameter", 0, Q("2.5 mm")))
sketch15.addConstraint(Sketcher.Constraint("DistanceY", 1, 3, 4, 3, Q("118 mm")))
sketch15.addConstraint(Sketcher.Constraint("DistanceY", 0, 3, -1, 1, Q("143.74 mm")))
sketch15.addConstraint(Sketcher.Constraint("DistanceY", 1, 3, -1, 1, Q("142.55 mm")))
sketch15.addConstraint(Sketcher.Constraint("DistanceX", 0, 3, 2, 3, Q("91.39 mm")))
sketch15.addConstraint(Sketcher.Constraint("DistanceX", -1, 1, 0, 3, Q("3.785 mm")))
sketch15.addConstraint(Sketcher.Constraint("DistanceX", -1, 1, 1, 3, Q("19.176 mm")))
sketch15.addConstraint(Sketcher.Constraint("DistanceX", -1, 1, 3, 3, Q("110.719 mm")))
sketch15.addConstraint(Sketcher.Constraint("DistanceY", 6, 3, -1, 1, Q("2.262 mm")))
pocket2 = body.newObject("PartDesign::Pocket", "Pocket001")
pocket2.Profile = sketch15
pocket2.Length = 10
pocket2.Reversed = True

# Sketch on YZ plane
sketch16 = body.newObject("Sketcher::SketchObject", "Sketch015")
sketch16.AttachmentSupport = (doc.getObject("YZ_Plane"), [""])
sketch16.MapMode = "FlatFace"
sketch16.AttachmentOffset = App.Placement(Vector(0, 0, -11.35), App.Rotation())
add_polygon(sketch16, [(15, -16), (7, -16), (7, -1), (15, -1)])  # lines 0-3
sketch16.addConstraint(Sketcher.Constraint("Horizontal", 0))
sketch16.addConstraint(Sketcher.Constraint("Vertical", 1))
sketch16.addConstraint(Sketcher.Constraint("Horizontal", 2))
sketch16.addConstraint(Sketcher.Constraint("Vertical", 3))
sketch16.addConstraint(Sketcher.Constraint("DistanceX", 0, 2, 0, 1, Q("8 mm")))
sketch16.addConstraint(Sketcher.Constraint("DistanceY", 1, 1, 1, 2, Q("15 mm")))
sketch16.addConstraint(Sketcher.Constraint("DistanceX", -1, 1, 0, 2, Q("6.6 mm")))
sketch16.addConstraint(Sketcher.Constraint("DistanceY", 0, 2, -1, 1, Q("15.85 mm")))
pocket3 = body.newObject("PartDesign::Pocket", "Pocket002")
pocket3.Profile = sketch16
pocket3.Length = 10
pocket3.Reversed = True

doc.recompute()
